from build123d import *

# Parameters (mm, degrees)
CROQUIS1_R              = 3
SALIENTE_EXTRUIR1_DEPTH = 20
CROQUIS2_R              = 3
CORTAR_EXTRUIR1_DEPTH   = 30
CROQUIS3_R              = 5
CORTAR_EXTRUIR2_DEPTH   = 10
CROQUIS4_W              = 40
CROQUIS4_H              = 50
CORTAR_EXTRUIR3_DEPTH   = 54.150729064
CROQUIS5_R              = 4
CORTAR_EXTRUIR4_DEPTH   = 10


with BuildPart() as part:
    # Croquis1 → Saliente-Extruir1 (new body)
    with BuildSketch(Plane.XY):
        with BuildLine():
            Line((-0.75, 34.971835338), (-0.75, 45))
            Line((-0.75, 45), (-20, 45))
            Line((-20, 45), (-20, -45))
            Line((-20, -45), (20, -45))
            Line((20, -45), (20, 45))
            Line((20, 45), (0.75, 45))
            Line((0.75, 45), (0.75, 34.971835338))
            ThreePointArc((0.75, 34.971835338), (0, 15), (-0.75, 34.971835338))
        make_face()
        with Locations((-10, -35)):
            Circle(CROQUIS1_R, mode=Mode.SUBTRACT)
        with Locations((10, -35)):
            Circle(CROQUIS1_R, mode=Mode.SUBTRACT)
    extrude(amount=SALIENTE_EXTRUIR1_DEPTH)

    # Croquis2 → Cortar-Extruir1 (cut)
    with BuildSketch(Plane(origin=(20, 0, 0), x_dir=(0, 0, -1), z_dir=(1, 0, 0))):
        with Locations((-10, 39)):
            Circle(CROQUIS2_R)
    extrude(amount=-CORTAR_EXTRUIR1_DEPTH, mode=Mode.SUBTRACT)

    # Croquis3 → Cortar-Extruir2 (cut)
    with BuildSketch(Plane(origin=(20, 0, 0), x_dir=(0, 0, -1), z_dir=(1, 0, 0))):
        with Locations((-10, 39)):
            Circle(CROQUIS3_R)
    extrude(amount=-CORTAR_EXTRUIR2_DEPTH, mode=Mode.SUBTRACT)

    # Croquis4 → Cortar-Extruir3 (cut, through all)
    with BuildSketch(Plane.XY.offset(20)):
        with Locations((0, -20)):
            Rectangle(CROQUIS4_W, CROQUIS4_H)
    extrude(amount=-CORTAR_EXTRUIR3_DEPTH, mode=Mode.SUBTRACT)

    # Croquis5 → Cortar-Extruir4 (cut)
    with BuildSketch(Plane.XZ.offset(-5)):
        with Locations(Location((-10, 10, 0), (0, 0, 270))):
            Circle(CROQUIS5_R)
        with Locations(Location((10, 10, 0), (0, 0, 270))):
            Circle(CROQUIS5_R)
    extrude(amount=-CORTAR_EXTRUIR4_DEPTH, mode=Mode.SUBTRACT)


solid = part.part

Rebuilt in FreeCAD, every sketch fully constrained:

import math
import FreeCAD as App
import Part
import Sketcher

V = App.Vector
Q = App.Units.Quantity


def add_polygon(sketch, points):
    """Adds a closed chain of lines whose ends are joined by coincident constraints."""
    first, n = sketch.GeometryCount, len(points)
    for a, b in zip(points, points[1:] + points[:1]):
        sketch.addGeometry(Part.LineSegment(App.Vector(*a, 0), App.Vector(*b, 0)), False)
    for i in range(n):
        sketch.addConstraint(Sketcher.Constraint("Coincident", first + i, 2, first + (i + 1) % n, 1))

doc = App.newDocument("Part")
body = doc.addObject("PartDesign::Body", "Body")

# Sketch on XY plane
sketch1 = body.newObject("Sketcher::SketchObject", "Sketch")
sketch1.AttachmentSupport = (doc.getObject("XY_Plane"), [""])
sketch1.MapMode = "FlatFace"
sketch1.addGeometry([
    Part.LineSegment(V(-0.8, 35, 0), V(-0.8, 45, 0)),  # 0
    Part.LineSegment(V(-0.8, 45, 0), V(-20, 45, 0)),  # 1
    Part.LineSegment(V(-20, 45, 0), V(-20, -45, 0)),  # 2
    Part.LineSegment(V(-20, -45, 0), V(20, -45, 0)),  # 3
    Part.LineSegment(V(20, -45, 0), V(20, 45, 0)),  # 4
    Part.LineSegment(V(20, 45, 0), V(0.8, 45, 0)),  # 5
    Part.LineSegment(V(0.8, 45, 0), V(0.8, 35, 0)),  # 6
    Part.ArcOfCircle(Part.Circle(V(0, 25, 0), V(0, 0, 1), 10), math.radians(94), math.radians(446)),  # 7
    Part.Circle(V(-10, -35, 0), V(0, 0, 1), 3),  # 8
    Part.Circle(V(10, -35, 0), V(0, 0, 1), 3),  # 9
], False)
sketch1.addConstraint([
    Sketcher.Constraint("Coincident", 0, 2, 1, 1),
    Sketcher.Constraint("Coincident", 1, 2, 2, 1),
    Sketcher.Constraint("Coincident", 2, 2, 3, 1),
    Sketcher.Constraint("Coincident", 3, 2, 4, 1),
    Sketcher.Constraint("Coincident", 4, 2, 5, 1),
    Sketcher.Constraint("Coincident", 5, 2, 6, 1),
    Sketcher.Constraint("Coincident", 6, 2, 7, 2),
    Sketcher.Constraint("Coincident", 7, 1, 0, 1),
    Sketcher.Constraint("Vertical", 0),
    Sketcher.Constraint("Horizontal", 1),
    Sketcher.Constraint("Vertical", 2),
    Sketcher.Constraint("Horizontal", 3),
    Sketcher.Constraint("Vertical", 4),
    Sketcher.Constraint("Horizontal", 5),
    Sketcher.Constraint("Vertical", 6),
    Sketcher.Constraint("Equal", 8, 9),
    Sketcher.Constraint("Symmetric", 1, 2, 3, 2, -1, 1),
    Sketcher.Constraint("Symmetric", 8, 3, 9, 3, -2),
    Sketcher.Constraint("Symmetric", 0, 2, 5, 2, -2),
    Sketcher.Constraint("PointOnObject", 7, 3, -2),
    Sketcher.Constraint("Diameter", 8, Q("6 mm")),
    Sketcher.Constraint("Radius", 7, Q("10 mm")),
    Sketcher.Constraint("DistanceX", 3, 1, 3, 2, Q("40 mm")),
    Sketcher.Constraint("DistanceY", 2, 2, 2, 1, Q("90 mm")),
    Sketcher.Constraint("DistanceY", -1, 1, 7, 3, Q("25 mm")),
    Sketcher.Constraint("DistanceX", 8, 3, -1, 1, Q("10 mm")),
    Sketcher.Constraint("DistanceY", 8, 3, -1, 1, Q("35 mm")),
    Sketcher.Constraint("DistanceX", 1, 2, 1, 1, Q("19.25 mm")),
])
pad1 = body.newObject("PartDesign::Pad", "Pad")
pad1.Profile = sketch1
pad1.Length = 20

# Sketch on YZ plane
sketch2 = body.newObject("Sketcher::SketchObject", "Sketch001")
sketch2.AttachmentSupport = (doc.getObject("YZ_Plane"), [""])
sketch2.MapMode = "FlatFace"
sketch2.AttachmentOffset = App.Placement(V(0, 0, 20), App.Rotation())
sketch2.addGeometry(Part.Circle(V(39, 10, 0), V(0, 0, 1), 3), False)
sketch2.addConstraint([
    Sketcher.Constraint("Diameter", 0, Q("6 mm")),
    Sketcher.Constraint("DistanceX", -1, 1, 0, 3, Q("39 mm")),
    Sketcher.Constraint("DistanceY", -1, 1, 0, 3, Q("10 mm")),
])
pocket1 = body.newObject("PartDesign::Pocket", "Pocket")
pocket1.Profile = sketch2
pocket1.Length = 30

# Sketch on YZ plane
sketch3 = body.newObject("Sketcher::SketchObject", "Sketch002")
sketch3.AttachmentSupport = (doc.getObject("YZ_Plane"), [""])
sketch3.MapMode = "FlatFace"
sketch3.AttachmentOffset = App.Placement(V(0, 0, 20), App.Rotation())
sketch3.addGeometry(Part.Circle(V(39, 10, 0), V(0, 0, 1), 5), False)
sketch3.addConstraint([
    Sketcher.Constraint("Diameter", 0, Q("10 mm")),
    Sketcher.Constraint("DistanceX", -1, 1, 0, 3, Q("39 mm")),
    Sketcher.Constraint("DistanceY", -1, 1, 0, 3, Q("10 mm")),
])
pocket2 = body.newObject("PartDesign::Pocket", "Pocket001")
pocket2.Profile = sketch3
pocket2.Length = 10

# Sketch on XY plane
sketch4 = body.newObject("Sketcher::SketchObject", "Sketch003")
sketch4.AttachmentSupport = (doc.getObject("XY_Plane"), [""])
sketch4.MapMode = "FlatFace"
sketch4.AttachmentOffset = App.Placement(V(0, 0, 20), App.Rotation())
add_polygon(sketch4, [(-20, 5), (-20, -45), (20, -45), (20, 5)])  # lines 0-3
sketch4.addConstraint([
    Sketcher.Constraint("Vertical", 0),
    Sketcher.Constraint("Horizontal", 1),
    Sketcher.Constraint("Vertical", 2),
    Sketcher.Constraint("Horizontal", 3),
    Sketcher.Constraint("DistanceX", 1, 1, 1, 2, Q("40 mm")),
    Sketcher.Constraint("DistanceY", 0, 2, 0, 1, Q("50 mm")),
    Sketcher.Constraint("DistanceX", 0, 2, -1, 1, Q("20 mm")),
    Sketcher.Constraint("DistanceY", 0, 2, -1, 1, Q("45 mm")),
])
pocket3 = body.newObject("PartDesign::Pocket", "Pocket002")
pocket3.Profile = sketch4
pocket3.Type = "ThroughAll"

# Sketch on XZ plane
sketch5 = body.newObject("Sketcher::SketchObject", "Sketch004")
sketch5.AttachmentSupport = (doc.getObject("XZ_Plane"), [""])
sketch5.MapMode = "FlatFace"
sketch5.AttachmentOffset = App.Placement(V(0, 0, -5), App.Rotation())
sketch5.addGeometry([
    Part.Circle(V(-10, 10, 0), V(0, 0, 1), 4),
    Part.Circle(V(10, 10, 0), V(0, 0, 1), 4),
], False)
sketch5.addConstraint([
    Sketcher.Constraint("Equal", 0, 1),
    Sketcher.Constraint("Symmetric", 0, 3, 1, 3, -2),
    Sketcher.Constraint("Diameter", 0, Q("8 mm")),
    Sketcher.Constraint("DistanceX", 0, 3, -1, 1, Q("10 mm")),
    Sketcher.Constraint("DistanceY", -1, 1, 0, 3, Q("10 mm")),
])
pocket4 = body.newObject("PartDesign::Pocket", "Pocket003")
pocket4.Profile = sketch5
pocket4.Length = 10

doc.recompute()
